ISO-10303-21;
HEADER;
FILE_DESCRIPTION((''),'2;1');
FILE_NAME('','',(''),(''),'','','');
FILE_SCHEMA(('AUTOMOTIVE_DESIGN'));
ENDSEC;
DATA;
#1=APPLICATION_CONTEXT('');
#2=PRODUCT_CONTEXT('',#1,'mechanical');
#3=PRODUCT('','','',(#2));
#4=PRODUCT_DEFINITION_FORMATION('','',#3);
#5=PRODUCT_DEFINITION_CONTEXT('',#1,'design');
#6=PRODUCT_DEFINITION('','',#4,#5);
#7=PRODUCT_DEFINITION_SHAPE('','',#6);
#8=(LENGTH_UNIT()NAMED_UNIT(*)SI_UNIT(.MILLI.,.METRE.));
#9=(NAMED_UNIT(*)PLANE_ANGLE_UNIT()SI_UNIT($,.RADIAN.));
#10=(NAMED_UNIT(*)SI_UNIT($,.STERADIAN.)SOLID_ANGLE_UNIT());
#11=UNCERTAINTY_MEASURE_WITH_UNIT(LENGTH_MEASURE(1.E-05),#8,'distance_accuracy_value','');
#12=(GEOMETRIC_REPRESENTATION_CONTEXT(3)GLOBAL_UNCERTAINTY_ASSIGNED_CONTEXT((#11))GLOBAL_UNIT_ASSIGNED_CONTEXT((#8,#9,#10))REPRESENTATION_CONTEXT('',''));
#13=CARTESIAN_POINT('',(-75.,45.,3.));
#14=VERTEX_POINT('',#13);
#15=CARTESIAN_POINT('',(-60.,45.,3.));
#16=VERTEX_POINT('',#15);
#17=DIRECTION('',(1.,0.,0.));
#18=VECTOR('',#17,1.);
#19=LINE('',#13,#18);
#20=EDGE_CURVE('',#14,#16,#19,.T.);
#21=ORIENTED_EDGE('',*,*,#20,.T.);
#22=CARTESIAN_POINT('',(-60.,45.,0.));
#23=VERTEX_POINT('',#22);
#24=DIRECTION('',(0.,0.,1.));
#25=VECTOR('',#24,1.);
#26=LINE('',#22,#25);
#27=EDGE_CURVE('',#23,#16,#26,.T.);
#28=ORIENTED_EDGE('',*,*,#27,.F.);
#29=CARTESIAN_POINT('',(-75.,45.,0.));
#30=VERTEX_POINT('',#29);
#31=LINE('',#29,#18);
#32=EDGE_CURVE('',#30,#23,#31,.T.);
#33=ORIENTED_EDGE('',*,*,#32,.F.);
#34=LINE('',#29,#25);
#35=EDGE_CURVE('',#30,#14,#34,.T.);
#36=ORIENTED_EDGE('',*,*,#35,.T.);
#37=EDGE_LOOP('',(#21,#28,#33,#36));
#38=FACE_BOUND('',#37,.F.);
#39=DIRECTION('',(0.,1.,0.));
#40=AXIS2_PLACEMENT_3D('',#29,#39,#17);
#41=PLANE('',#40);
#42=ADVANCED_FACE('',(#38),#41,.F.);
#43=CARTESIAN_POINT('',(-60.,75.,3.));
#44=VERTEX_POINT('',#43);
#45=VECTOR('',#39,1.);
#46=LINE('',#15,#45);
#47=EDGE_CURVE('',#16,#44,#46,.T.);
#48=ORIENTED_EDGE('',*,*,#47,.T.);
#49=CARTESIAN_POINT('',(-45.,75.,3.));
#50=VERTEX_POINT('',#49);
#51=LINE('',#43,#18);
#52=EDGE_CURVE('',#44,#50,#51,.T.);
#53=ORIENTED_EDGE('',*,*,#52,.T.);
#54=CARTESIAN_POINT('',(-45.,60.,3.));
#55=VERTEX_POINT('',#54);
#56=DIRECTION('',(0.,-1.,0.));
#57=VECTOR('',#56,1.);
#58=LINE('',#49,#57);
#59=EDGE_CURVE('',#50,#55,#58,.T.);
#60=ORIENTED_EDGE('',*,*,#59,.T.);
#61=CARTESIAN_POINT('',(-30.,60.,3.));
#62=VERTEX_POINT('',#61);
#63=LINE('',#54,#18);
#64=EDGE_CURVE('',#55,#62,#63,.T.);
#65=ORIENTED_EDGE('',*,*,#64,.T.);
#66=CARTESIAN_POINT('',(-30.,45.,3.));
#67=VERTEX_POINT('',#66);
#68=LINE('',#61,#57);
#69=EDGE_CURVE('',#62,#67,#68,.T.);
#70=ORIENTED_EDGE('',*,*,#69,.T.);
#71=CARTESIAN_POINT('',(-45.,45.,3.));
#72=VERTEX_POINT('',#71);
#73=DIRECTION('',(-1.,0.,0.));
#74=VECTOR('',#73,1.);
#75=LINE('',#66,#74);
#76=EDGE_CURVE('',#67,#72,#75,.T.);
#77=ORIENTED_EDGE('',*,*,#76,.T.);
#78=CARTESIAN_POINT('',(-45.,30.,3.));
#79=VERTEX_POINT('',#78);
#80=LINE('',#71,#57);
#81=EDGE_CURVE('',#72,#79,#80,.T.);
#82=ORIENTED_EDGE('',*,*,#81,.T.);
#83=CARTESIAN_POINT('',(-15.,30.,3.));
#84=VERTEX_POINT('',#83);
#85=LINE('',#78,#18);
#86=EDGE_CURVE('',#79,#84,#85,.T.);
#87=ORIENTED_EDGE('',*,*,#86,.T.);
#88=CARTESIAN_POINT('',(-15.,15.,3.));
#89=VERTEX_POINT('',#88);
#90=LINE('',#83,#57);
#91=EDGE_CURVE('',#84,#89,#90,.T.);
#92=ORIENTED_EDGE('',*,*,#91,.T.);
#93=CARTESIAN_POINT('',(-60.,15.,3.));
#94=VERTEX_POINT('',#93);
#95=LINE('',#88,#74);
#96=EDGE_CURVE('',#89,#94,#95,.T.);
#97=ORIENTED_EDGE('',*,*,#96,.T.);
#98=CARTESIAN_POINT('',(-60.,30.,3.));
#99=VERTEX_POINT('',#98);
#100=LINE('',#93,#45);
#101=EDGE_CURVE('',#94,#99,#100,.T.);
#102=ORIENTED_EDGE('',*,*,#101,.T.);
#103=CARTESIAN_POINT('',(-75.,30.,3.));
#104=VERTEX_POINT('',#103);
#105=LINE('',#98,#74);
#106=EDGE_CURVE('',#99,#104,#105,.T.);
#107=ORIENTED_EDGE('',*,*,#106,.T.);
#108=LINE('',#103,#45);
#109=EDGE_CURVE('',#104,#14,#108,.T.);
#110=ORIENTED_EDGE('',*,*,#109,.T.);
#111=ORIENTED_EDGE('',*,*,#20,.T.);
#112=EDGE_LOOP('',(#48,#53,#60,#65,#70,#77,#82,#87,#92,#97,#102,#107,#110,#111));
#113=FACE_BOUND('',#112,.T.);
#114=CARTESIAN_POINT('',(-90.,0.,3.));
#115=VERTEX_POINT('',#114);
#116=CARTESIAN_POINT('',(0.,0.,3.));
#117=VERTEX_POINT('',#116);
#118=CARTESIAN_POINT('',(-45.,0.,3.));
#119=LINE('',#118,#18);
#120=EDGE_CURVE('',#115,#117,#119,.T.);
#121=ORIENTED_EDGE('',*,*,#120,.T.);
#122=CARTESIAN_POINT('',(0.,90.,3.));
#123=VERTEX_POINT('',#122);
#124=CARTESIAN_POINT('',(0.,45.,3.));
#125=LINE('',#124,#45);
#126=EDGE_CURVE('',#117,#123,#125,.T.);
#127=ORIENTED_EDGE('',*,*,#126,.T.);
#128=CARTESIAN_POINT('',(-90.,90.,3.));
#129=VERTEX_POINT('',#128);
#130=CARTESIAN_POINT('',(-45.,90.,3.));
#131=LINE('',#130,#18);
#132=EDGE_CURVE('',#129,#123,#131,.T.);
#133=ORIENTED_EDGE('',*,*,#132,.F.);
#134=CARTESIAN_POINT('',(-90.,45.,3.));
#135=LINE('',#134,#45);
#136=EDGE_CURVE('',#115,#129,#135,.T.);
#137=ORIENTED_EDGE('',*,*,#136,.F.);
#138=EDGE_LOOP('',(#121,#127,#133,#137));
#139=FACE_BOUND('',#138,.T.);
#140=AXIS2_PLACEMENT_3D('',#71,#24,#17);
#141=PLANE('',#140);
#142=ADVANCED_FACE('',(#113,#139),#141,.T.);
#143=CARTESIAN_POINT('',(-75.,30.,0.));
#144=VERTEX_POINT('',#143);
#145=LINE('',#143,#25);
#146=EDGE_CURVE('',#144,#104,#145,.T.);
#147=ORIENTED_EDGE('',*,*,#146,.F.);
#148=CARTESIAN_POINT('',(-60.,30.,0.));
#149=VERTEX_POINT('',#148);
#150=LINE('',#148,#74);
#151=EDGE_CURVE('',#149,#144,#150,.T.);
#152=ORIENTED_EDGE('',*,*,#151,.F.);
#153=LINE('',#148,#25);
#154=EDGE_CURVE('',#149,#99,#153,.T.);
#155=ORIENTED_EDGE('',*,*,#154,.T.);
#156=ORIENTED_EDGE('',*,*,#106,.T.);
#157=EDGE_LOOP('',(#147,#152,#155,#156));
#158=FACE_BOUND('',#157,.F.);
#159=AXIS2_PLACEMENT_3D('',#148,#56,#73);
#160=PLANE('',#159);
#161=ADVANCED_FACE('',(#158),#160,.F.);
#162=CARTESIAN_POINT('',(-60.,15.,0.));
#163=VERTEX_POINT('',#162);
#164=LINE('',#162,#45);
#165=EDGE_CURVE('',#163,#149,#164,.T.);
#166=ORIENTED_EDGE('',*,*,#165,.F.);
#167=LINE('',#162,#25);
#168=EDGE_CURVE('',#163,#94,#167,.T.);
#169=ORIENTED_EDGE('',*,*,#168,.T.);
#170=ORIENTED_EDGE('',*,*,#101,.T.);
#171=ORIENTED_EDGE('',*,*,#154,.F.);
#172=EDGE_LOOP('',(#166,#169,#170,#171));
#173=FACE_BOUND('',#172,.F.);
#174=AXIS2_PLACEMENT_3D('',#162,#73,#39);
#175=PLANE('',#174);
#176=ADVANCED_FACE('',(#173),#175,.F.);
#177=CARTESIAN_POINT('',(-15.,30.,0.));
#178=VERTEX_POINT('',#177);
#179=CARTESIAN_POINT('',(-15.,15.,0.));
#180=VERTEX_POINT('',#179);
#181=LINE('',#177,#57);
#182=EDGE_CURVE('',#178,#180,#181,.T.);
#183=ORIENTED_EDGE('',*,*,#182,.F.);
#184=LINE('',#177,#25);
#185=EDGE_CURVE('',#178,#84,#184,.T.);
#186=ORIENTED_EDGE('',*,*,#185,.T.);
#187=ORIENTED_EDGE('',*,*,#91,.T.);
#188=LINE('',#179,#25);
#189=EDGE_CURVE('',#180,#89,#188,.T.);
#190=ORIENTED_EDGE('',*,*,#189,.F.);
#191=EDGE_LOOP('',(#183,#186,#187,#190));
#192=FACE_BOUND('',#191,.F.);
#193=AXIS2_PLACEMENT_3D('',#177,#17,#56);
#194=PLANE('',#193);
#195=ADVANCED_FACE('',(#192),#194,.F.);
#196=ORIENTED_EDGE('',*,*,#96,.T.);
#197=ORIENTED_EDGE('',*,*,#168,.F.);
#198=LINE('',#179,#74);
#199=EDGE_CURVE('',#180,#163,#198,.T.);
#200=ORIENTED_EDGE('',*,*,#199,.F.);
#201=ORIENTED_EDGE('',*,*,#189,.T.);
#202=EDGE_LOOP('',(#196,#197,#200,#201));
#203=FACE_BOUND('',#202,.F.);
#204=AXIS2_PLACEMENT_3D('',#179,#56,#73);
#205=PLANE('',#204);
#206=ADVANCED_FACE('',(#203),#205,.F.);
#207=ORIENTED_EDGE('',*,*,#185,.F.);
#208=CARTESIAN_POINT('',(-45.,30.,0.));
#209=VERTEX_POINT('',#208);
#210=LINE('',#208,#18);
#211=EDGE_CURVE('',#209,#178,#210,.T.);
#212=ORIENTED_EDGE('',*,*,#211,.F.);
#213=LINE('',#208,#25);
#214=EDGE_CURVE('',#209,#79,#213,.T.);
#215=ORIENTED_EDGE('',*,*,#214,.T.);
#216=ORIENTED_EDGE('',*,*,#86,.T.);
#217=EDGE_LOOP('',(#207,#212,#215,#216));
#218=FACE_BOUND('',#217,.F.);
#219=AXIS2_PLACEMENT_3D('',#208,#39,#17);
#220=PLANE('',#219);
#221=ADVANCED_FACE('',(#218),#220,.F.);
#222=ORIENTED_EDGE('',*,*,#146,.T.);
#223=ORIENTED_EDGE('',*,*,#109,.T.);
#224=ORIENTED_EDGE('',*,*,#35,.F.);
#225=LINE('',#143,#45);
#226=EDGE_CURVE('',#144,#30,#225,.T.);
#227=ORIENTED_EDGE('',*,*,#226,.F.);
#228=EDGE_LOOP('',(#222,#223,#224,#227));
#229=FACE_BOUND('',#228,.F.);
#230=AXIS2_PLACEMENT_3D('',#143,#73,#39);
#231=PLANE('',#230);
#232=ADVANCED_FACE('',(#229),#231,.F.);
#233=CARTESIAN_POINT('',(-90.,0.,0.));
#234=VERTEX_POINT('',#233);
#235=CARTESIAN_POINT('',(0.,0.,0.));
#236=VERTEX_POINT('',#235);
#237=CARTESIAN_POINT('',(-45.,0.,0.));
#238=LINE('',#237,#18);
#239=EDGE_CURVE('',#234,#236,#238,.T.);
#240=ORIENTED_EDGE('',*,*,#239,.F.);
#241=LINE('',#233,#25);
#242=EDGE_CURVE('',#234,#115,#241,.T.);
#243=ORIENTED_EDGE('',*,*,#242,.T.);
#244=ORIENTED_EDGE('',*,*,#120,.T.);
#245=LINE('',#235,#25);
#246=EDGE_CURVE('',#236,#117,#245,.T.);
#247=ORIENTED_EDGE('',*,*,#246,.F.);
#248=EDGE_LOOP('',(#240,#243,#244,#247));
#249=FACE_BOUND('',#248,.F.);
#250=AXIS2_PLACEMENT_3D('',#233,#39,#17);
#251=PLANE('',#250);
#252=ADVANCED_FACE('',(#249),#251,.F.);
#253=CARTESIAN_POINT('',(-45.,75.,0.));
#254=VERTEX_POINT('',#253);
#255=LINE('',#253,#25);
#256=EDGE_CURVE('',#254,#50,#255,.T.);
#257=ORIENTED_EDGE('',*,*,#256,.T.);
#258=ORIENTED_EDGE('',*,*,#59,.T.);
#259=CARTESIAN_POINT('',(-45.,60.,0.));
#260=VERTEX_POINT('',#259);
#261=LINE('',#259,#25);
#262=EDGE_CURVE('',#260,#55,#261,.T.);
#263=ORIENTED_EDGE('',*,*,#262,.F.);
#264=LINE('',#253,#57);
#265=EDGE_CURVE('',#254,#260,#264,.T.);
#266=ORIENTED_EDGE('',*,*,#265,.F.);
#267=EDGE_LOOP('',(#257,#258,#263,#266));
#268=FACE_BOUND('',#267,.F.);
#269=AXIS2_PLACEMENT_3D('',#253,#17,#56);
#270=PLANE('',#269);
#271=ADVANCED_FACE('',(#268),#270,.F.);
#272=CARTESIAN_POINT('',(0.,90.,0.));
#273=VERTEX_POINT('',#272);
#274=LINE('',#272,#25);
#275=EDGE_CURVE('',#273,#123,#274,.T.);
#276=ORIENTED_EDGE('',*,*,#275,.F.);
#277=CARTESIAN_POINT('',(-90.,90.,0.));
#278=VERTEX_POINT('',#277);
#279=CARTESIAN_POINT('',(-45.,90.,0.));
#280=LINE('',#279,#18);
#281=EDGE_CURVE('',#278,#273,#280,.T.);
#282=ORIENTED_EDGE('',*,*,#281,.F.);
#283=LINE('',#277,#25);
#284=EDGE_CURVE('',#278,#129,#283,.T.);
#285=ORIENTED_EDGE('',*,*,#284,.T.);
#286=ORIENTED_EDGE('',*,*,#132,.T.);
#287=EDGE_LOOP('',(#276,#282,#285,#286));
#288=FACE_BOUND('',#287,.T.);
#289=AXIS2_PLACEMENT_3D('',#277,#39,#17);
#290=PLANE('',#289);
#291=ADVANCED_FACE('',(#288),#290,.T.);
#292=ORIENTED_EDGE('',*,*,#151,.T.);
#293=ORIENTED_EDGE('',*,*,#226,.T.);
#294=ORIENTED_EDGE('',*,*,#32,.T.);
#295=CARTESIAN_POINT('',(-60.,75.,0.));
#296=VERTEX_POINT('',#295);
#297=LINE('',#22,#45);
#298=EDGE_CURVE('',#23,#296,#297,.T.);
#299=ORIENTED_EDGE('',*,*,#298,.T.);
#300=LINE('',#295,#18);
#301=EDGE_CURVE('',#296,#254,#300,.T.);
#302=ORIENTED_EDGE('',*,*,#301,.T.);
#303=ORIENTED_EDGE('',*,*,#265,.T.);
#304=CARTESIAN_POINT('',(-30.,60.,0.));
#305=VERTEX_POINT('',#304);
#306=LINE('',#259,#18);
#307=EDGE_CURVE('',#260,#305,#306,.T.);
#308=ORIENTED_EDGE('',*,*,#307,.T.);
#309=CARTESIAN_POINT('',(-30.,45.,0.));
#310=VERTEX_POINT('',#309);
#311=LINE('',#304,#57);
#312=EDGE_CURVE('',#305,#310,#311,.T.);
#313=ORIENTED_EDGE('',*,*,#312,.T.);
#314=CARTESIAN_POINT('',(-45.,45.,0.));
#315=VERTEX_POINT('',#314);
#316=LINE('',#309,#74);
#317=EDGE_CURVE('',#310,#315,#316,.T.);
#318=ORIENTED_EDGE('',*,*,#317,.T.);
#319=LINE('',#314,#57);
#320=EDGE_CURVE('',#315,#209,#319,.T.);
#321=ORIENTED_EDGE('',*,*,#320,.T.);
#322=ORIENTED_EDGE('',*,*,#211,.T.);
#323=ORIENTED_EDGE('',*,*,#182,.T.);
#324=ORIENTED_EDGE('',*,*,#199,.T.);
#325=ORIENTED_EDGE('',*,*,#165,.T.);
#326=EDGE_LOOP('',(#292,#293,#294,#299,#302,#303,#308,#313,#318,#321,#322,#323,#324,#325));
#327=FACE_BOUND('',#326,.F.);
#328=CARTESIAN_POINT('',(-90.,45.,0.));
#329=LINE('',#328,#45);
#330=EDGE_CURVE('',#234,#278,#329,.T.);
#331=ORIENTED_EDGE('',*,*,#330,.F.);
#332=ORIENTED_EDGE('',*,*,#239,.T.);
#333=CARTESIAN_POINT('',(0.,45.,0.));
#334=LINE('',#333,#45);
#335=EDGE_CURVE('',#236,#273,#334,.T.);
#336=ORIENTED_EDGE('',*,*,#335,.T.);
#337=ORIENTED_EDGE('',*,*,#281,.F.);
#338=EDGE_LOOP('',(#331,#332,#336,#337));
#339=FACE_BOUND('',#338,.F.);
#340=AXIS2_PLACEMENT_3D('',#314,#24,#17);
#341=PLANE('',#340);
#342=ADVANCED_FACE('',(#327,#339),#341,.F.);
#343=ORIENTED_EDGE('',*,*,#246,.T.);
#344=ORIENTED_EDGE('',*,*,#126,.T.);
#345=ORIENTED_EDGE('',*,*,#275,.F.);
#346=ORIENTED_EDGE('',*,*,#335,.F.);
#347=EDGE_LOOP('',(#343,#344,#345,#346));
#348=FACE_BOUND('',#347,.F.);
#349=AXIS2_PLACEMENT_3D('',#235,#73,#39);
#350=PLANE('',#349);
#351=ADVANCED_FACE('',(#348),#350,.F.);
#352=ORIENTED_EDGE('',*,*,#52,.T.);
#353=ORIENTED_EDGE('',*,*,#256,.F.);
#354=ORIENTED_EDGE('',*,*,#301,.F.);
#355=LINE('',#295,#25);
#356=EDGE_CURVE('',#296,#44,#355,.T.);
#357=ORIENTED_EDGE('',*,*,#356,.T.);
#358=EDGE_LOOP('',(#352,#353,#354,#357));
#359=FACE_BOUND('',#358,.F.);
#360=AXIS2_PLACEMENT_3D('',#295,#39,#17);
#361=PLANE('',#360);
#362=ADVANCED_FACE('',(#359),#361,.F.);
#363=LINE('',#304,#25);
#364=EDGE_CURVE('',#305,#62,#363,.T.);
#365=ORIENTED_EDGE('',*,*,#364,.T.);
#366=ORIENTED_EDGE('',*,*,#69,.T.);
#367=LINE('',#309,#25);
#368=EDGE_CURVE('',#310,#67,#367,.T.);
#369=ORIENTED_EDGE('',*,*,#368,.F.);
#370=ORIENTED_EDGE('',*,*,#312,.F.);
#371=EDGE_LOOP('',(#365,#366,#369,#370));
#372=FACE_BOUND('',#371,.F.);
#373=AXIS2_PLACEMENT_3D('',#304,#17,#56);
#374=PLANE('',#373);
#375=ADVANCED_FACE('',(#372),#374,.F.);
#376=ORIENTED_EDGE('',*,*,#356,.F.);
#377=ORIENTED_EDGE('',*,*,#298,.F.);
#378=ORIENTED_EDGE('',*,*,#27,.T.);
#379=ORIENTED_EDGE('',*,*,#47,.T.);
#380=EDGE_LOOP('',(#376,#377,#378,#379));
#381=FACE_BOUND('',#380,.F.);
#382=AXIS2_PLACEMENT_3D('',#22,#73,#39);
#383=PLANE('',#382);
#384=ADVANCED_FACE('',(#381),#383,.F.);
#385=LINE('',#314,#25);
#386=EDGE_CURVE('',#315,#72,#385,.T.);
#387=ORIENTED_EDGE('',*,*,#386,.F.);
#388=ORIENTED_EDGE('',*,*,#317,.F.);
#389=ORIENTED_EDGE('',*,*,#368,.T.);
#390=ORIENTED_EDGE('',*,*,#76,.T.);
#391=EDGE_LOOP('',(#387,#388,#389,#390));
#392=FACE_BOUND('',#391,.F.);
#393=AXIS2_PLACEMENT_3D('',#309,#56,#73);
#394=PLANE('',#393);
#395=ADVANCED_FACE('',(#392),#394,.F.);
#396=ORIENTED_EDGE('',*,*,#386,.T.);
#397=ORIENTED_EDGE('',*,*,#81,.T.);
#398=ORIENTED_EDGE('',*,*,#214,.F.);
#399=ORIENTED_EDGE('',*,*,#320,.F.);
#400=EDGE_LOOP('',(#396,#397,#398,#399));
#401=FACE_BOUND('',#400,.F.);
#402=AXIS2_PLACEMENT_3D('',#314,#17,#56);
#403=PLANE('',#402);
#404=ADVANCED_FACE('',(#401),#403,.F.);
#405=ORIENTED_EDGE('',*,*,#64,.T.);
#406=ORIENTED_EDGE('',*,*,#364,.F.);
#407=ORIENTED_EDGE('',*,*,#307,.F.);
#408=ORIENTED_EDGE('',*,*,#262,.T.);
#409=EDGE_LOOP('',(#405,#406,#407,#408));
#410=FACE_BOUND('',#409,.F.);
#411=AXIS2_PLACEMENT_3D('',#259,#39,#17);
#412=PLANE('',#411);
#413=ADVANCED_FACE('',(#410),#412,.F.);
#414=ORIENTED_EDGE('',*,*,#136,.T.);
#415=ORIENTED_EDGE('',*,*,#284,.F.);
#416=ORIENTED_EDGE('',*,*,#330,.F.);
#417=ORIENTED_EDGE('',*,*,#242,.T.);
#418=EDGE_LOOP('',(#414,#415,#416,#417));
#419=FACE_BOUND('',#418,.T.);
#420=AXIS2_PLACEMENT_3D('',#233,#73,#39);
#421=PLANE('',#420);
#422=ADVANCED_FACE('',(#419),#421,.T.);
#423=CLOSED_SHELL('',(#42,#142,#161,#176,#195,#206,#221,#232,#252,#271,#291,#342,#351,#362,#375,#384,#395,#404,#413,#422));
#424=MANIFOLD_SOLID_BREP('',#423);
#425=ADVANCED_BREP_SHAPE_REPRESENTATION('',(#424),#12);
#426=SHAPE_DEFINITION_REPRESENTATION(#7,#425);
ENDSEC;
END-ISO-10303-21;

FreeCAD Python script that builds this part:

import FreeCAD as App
import Part
import Sketcher
from FreeCAD import Vector


def add_polygon(sketch, points):
    """Adds a closed chain of lines whose ends are joined by coincident constraints."""
    first, n = sketch.GeometryCount, len(points)
    for a, b in zip(points, points[1:] + points[:1]):
        sketch.addGeometry(Part.LineSegment(App.Vector(*a, 0), App.Vector(*b, 0)), False)
    for i in range(n):
        sketch.addConstraint(Sketcher.Constraint("Coincident", first + i, 2, first + (i + 1) % n, 1))

doc = App.newDocument("Part")
body = doc.addObject("PartDesign::Body", "Body")

sketch1 = doc.addObject("Sketcher::SketchObject", "Sketch")
body.addObject(sketch1)
sketch1.AttachmentSupport = (doc.XY_Plane, [""])
sketch1.MapMode = "FlatFace"
add_polygon(sketch1, [(-90, 90), (-90, 0), (0, 0), (0, 90)])
sketch1.addConstraint(Sketcher.Constraint("Vertical", 0))
sketch1.addConstraint(Sketcher.Constraint("Horizontal", 1))
sketch1.addConstraint(Sketcher.Constraint("Vertical", 2))
sketch1.addConstraint(Sketcher.Constraint("Horizontal", 3))
sketch1.addConstraint(Sketcher.Constraint("Coincident", 1, 2, -1, 1))
sketch1.addConstraint(Sketcher.Constraint("Equal", 3, 0))
sketch1.addConstraint(Sketcher.Constraint("DistanceX", 1, 1, 1, 2, 90.0))
pad1 = doc.addObject("PartDesign::Pad", "Pad")
body.addObject(pad1)
pad1.Profile = sketch1
pad1.Length = 3

sketch2 = doc.addObject("Sketcher::SketchObject", "Sketch001")
body.addObject(sketch2)
sketch2.AttachmentSupport = (doc.XY_Plane, [""])
sketch2.MapMode = "FlatFace"
add_polygon(sketch2, [(-60, 15), (-60, 30), (-75, 30), (-75, 45), (-60, 45), (-60, 75), (-45, 75), (-45, 60), (-30, 60), (-30, 45), (-45, 45), (-45, 30), (-15, 30), (-15, 15)])
sketch2.addConstraint(Sketcher.Constraint("Vertical", 0))
sketch2.addConstraint(Sketcher.Constraint("Horizontal", 1))
sketch2.addConstraint(Sketcher.Constraint("Vertical", 2))
sketch2.addConstraint(Sketcher.Constraint("Horizontal", 3))
sketch2.addConstraint(Sketcher.Constraint("Vertical", 4))
sketch2.addConstraint(Sketcher.Constraint("Horizontal", 5))
sketch2.addConstraint(Sketcher.Constraint("Vertical", 6))
sketch2.addConstraint(Sketcher.Constraint("Horizontal", 7))
sketch2.addConstraint(Sketcher.Constraint("Vertical", 8))
sketch2.addConstraint(Sketcher.Constraint("Horizontal", 9))
sketch2.addConstraint(Sketcher.Constraint("Vertical", 10))
sketch2.addConstraint(Sketcher.Constraint("Horizontal", 11))
sketch2.addConstraint(Sketcher.Constraint("Vertical", 12))
sketch2.addConstraint(Sketcher.Constraint("Horizontal", 13))
sketch2.addConstraint(Sketcher.Constraint("Horizontal", 3, 2, 8, 2))
sketch2.addConstraint(Sketcher.Constraint("Horizontal", 1, 2, 10, 2))
sketch2.addConstraint(Sketcher.Constraint("Vertical", 0, 2, 3, 2))
sketch2.addConstraint(Sketcher.Constraint("Vertical", 6, 2, 9, 2))
sketch2.addConstraint(Sketcher.Constraint("Equal", 3, 5))
sketch2.addConstraint(Sketcher.Constraint("Equal", 5, 7))
sketch2.addConstraint(Sketcher.Constraint("Equal", 9, 0))
sketch2.addConstraint(Sketcher.Constraint("Equal", 0, 2))
sketch2.addConstraint(Sketcher.Constraint("Equal", 11, 4))
sketch2.addConstraint(Sketcher.Constraint("Equal", 2, 6))
sketch2.addConstraint(Sketcher.Constraint("Equal", 6, 8))
sketch2.addConstraint(Sketcher.Constraint("DistanceX", 1, 2, 1, 1, 15.0))
sketch2.addConstraint(Sketcher.Constraint("DistanceX", 0, 2, -1, 1, 60.0))
sketch2.addConstraint(Sketcher.Constraint("DistanceY", -1, 1, 0, 2, 30.0))
pocket1 = doc.addObject("PartDesign::Pocket", "Pocket")
body.addObject(pocket1)
pocket1.Profile = sketch2
pocket1.Length = 3
pocket1.Reversed = True

doc.recompute()
